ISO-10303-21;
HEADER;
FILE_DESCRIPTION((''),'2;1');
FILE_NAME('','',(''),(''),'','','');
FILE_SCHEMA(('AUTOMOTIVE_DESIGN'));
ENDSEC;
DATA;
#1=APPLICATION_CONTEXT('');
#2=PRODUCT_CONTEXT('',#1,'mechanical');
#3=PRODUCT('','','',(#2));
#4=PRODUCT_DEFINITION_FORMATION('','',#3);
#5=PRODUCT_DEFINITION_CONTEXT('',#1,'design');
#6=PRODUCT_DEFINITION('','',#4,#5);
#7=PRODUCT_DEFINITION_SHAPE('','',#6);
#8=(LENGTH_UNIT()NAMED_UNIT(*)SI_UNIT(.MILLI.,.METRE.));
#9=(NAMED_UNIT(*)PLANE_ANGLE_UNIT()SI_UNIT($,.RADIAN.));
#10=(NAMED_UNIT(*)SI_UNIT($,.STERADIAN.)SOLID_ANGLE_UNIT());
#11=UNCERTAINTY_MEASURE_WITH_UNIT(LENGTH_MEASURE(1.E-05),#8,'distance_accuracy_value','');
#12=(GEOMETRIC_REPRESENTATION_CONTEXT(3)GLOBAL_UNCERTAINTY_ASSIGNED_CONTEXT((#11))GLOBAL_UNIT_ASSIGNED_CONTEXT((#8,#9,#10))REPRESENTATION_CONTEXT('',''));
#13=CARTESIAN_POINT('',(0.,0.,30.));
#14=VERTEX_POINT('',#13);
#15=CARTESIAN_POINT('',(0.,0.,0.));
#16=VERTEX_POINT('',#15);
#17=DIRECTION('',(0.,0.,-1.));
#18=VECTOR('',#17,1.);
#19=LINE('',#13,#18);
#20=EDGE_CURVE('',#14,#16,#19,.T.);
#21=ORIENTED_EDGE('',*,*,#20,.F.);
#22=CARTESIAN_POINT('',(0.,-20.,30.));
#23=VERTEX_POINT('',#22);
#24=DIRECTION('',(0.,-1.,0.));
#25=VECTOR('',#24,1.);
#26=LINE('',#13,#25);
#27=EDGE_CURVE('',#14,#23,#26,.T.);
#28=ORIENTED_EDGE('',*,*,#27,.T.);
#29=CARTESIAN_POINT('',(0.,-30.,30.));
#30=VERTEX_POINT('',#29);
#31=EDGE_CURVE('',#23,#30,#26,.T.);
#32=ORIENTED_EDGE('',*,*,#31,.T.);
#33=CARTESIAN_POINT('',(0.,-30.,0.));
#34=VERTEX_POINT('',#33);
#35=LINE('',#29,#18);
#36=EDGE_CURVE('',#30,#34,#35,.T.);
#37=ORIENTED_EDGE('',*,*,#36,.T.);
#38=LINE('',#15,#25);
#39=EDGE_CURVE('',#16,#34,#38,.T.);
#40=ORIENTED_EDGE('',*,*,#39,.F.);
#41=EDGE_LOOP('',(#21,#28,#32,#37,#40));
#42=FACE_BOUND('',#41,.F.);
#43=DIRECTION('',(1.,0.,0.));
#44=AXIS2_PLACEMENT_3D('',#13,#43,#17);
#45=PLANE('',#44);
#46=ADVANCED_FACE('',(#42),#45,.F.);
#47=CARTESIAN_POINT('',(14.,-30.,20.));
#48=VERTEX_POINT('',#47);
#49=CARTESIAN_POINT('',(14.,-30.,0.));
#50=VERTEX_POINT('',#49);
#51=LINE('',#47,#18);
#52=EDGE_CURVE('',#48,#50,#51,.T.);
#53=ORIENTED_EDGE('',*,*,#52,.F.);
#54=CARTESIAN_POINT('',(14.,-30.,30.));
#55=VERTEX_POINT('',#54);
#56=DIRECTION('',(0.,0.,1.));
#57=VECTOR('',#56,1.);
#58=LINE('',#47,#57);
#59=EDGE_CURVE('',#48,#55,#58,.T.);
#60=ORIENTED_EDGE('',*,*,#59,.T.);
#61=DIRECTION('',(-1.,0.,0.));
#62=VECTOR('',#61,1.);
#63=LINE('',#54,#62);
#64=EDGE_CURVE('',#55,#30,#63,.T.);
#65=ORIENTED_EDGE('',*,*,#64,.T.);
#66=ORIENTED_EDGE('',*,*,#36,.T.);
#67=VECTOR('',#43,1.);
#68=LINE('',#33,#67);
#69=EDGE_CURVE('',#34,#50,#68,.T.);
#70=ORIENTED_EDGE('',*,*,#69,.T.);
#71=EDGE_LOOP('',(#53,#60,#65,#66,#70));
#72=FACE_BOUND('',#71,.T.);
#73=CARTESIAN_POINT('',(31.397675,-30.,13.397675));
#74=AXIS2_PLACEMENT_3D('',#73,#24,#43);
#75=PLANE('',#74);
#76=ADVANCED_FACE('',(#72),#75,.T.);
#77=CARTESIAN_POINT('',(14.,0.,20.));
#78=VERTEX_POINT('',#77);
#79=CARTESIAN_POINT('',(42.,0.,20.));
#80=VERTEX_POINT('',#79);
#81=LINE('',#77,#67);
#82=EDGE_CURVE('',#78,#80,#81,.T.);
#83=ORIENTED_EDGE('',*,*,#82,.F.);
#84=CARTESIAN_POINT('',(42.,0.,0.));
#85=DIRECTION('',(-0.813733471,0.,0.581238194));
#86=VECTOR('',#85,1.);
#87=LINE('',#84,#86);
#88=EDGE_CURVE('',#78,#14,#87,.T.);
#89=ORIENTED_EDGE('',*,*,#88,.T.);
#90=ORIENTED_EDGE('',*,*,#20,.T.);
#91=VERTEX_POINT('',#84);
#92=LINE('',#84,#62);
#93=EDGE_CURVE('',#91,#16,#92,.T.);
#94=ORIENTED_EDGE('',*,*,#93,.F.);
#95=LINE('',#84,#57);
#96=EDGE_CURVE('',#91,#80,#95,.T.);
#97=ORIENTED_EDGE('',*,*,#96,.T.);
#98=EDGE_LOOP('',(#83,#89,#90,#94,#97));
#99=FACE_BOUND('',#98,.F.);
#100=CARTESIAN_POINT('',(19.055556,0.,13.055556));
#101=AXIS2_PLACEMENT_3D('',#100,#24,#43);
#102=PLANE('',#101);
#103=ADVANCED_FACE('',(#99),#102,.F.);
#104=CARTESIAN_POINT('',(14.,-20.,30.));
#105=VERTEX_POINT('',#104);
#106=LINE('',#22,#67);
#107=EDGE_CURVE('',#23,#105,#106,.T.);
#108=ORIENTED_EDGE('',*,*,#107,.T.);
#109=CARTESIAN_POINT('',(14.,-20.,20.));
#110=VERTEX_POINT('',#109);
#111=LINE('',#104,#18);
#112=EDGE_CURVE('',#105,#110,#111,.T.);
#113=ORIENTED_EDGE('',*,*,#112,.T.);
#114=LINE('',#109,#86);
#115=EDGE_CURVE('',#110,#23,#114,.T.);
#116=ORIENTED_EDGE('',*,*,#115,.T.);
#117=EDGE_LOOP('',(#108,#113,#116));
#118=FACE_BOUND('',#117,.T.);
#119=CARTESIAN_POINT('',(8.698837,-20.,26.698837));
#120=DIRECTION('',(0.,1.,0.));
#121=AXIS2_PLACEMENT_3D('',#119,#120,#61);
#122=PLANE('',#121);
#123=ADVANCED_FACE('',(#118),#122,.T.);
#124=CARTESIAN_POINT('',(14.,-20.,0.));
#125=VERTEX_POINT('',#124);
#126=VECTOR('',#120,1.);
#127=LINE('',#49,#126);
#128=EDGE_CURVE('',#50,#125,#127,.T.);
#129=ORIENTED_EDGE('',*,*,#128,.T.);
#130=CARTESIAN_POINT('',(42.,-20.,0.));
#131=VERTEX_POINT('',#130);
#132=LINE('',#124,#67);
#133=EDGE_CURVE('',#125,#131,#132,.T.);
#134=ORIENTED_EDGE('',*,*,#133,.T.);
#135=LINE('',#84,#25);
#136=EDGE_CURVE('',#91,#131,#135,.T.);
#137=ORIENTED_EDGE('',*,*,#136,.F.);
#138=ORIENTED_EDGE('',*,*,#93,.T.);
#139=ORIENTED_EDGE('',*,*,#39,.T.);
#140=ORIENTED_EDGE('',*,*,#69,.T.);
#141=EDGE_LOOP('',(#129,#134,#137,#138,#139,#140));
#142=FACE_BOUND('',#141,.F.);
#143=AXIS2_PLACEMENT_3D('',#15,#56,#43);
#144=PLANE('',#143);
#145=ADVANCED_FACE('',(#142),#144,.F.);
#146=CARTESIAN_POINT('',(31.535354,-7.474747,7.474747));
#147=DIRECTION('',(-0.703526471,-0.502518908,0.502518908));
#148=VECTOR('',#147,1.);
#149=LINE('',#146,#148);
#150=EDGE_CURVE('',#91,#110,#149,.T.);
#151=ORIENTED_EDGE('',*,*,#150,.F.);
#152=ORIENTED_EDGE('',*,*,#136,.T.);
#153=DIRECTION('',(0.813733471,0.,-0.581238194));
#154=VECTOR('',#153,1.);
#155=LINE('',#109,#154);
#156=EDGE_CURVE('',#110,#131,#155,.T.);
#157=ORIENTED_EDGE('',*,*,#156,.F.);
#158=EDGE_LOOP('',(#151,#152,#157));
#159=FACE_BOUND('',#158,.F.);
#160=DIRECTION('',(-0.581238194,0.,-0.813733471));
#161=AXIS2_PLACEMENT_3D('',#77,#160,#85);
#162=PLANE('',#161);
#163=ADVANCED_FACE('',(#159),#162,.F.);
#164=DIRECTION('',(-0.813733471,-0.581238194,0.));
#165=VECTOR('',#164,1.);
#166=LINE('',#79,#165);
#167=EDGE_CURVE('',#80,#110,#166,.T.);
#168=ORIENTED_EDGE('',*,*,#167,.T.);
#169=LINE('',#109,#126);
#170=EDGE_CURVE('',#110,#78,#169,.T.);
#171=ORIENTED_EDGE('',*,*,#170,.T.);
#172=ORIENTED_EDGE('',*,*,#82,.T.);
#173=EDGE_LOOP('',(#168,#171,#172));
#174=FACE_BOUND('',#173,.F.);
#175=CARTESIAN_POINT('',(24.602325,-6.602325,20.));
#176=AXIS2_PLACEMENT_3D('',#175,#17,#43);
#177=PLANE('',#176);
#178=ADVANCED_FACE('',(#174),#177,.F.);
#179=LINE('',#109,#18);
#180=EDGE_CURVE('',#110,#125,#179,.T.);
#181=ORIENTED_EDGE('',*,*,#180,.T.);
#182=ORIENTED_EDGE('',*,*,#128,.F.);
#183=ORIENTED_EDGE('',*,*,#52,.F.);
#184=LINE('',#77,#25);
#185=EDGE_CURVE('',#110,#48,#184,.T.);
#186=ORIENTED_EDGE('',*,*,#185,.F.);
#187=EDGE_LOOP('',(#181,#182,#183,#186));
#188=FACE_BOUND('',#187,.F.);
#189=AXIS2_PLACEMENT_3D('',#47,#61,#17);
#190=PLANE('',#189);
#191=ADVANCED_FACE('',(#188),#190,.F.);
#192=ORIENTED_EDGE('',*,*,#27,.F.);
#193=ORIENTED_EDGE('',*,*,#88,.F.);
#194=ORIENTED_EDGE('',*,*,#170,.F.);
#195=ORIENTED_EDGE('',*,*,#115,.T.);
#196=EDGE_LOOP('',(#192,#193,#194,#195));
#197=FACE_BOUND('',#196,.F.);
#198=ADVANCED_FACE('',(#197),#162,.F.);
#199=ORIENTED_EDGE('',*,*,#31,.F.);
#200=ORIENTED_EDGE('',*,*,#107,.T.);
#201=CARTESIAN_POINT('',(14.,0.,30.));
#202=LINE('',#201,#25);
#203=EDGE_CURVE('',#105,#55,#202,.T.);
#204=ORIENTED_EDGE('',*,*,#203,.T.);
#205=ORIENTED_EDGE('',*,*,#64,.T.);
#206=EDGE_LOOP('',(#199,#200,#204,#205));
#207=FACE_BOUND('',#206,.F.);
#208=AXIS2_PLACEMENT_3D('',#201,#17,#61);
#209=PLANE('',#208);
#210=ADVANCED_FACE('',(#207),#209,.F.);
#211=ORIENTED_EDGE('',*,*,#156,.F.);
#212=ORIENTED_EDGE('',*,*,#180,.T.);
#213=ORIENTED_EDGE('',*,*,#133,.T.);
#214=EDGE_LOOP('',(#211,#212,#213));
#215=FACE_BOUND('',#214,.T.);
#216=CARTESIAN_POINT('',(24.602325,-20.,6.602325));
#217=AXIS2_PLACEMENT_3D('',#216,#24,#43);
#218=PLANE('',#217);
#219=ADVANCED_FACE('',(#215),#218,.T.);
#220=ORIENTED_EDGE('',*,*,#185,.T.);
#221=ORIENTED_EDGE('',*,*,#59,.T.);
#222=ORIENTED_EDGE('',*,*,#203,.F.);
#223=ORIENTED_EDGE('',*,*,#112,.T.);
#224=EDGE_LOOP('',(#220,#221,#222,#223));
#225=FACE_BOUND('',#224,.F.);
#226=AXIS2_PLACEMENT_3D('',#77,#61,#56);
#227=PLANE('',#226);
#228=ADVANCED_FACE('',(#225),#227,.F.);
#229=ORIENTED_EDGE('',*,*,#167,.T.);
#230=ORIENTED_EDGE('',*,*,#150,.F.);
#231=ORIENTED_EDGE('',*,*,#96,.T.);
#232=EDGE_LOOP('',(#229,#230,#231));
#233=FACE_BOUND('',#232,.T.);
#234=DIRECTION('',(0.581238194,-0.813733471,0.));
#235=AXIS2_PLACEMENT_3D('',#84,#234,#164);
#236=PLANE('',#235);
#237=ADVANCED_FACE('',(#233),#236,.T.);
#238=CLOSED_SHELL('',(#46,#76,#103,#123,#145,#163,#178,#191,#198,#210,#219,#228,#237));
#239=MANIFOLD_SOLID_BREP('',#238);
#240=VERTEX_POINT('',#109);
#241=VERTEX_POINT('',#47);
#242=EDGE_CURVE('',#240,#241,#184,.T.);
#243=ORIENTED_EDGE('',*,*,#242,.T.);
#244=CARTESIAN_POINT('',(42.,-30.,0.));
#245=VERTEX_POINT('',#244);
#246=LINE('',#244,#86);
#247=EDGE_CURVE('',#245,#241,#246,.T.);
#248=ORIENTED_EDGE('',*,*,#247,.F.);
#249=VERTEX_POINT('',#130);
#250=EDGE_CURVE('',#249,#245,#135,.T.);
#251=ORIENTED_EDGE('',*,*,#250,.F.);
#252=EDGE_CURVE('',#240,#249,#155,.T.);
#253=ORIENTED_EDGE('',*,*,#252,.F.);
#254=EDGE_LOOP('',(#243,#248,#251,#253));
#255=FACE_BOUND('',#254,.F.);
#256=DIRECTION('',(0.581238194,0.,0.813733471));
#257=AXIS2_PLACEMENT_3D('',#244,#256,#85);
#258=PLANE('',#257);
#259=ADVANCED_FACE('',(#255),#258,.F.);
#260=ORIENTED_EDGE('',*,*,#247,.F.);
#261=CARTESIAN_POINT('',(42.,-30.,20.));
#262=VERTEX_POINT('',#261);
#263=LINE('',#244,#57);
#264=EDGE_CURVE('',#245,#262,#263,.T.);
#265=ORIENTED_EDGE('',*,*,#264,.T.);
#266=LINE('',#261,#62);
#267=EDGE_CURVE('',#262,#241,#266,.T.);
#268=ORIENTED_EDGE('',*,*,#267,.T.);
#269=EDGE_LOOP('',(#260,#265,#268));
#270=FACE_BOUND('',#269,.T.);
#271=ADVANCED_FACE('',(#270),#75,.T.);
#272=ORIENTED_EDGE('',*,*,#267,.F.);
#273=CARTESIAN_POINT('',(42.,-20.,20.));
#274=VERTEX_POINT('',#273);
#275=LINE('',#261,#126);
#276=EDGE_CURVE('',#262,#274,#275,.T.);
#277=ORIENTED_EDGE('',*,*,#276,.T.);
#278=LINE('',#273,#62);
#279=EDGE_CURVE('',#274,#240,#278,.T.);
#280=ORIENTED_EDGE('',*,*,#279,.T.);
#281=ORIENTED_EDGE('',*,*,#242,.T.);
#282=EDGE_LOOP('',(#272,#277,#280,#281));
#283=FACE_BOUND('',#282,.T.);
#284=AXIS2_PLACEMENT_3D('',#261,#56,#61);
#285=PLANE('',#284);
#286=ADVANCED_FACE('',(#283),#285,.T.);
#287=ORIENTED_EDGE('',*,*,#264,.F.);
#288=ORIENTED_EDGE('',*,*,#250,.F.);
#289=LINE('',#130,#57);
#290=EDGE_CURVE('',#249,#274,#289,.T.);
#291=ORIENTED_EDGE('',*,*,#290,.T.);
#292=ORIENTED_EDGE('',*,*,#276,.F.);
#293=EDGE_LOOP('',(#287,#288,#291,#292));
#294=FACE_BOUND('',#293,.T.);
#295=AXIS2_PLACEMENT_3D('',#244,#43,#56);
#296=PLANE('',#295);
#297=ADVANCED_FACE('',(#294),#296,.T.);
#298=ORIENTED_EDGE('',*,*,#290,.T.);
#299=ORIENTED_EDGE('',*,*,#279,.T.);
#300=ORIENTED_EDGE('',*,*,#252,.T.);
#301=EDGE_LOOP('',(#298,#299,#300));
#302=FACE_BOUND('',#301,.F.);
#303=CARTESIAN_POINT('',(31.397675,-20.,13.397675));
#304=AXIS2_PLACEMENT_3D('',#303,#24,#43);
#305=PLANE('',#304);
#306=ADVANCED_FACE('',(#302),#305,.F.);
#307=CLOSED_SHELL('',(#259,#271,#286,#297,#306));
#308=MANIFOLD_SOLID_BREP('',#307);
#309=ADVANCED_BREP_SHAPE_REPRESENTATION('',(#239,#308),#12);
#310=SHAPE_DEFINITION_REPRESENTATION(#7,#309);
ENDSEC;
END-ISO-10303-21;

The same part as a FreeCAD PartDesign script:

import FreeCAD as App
import Part
import Sketcher
from FreeCAD import Vector


def add_polygon(sketch, points):
    """Adds a closed chain of lines whose ends are joined by coincident constraints."""
    first, n = sketch.GeometryCount, len(points)
    for a, b in zip(points, points[1:] + points[:1]):
        sketch.addGeometry(Part.LineSegment(App.Vector(*a, 0), App.Vector(*b, 0)), False)
    for i in range(n):
        sketch.addConstraint(Sketcher.Constraint("Coincident", first + i, 2, first + (i + 1) % n, 1))

doc = App.newDocument("Part")
body = doc.addObject("PartDesign::Body", "Body")
body.AllowCompound = True

# Sketch on XZ plane
sketch1 = body.newObject("Sketcher::SketchObject", "Sketch")
sketch1.AttachmentSupport = (doc.getObject("XZ_Plane"), [""])
sketch1.MapMode = "FlatFace"
add_polygon(sketch1, [(0, 30), (0, 0), (42, 0), (42, 20), (14, 20), (14, 30)])  # lines 0-5
sketch1.addConstraint(Sketcher.Constraint("Vertical", 0))
sketch1.addConstraint(Sketcher.Constraint("Horizontal", 1))
sketch1.addConstraint(Sketcher.Constraint("Vertical", 2))
sketch1.addConstraint(Sketcher.Constraint("Horizontal", 3))
sketch1.addConstraint(Sketcher.Constraint("Vertical", 4))
sketch1.addConstraint(Sketcher.Constraint("Horizontal", 5))
sketch1.addConstraint(Sketcher.Constraint("Coincident", 0, 2, -1, 1))
sketch1.addConstraint(Sketcher.Constraint("DistanceX", 1, 1, 1, 2, 42.0))
sketch1.addConstraint(Sketcher.Constraint("DistanceX", 3, 2, 3, 1, 28.0))
sketch1.addConstraint(Sketcher.Constraint("DistanceY", 0, 2, 0, 1, 30.0))
sketch1.addConstraint(Sketcher.Constraint("DistanceY", 2, 1, 2, 2, 20.0))
pad1 = body.newObject("PartDesign::Pad", "Pad")
pad1.Profile = sketch1
pad1.Length = 30

# Sketch on XZ plane
sketch2 = body.newObject("Sketcher::SketchObject", "Sketch001")
sketch2.AttachmentSupport = (doc.getObject("XZ_Plane"), [""])
sketch2.MapMode = "FlatFace"
add_polygon(sketch2, [(14, 20), (0, 30), (14, 30)])  # lines 0-2
sketch2.addConstraint(Sketcher.Constraint("Horizontal", 1))
sketch2.addConstraint(Sketcher.Constraint("Vertical", 2))
sketch2.addConstraint(Sketcher.Constraint("PointOnObject", 0, 2, -2))
sketch2.addConstraint(Sketcher.Constraint("DistanceX", 1, 1, 1, 2, 14.0))
sketch2.addConstraint(Sketcher.Constraint("DistanceY", 2, 2, 2, 1, 10.0))
sketch2.addConstraint(Sketcher.Constraint("DistanceY", -1, 1, 0, 2, 30.0))
pocket1 = body.newObject("PartDesign::Pocket", "Pocket")
pocket1.Profile = sketch2
pocket1.Length = 20
pocket1.Reversed = True

# Sketch on XZ plane
sketch3 = body.newObject("Sketcher::SketchObject", "Sketch002")
sketch3.AttachmentSupport = (doc.getObject("XZ_Plane"), [""])
sketch3.MapMode = "FlatFace"
sketch3.AttachmentOffset = App.Placement(Vector(0, 0, 30), App.Rotation())
add_polygon(sketch3, [(42, 20), (14, 20), (42, 0)])  # lines 0-2
sketch3.addConstraint(Sketcher.Constraint("Horizontal", 0))
sketch3.addConstraint(Sketcher.Constraint("Vertical", 2))
sketch3.addConstraint(Sketcher.Constraint("PointOnObject", 1, 2, -1))
sketch3.addConstraint(Sketcher.Constraint("DistanceX", 0, 2, 0, 1, 28.0))
sketch3.addConstraint(Sketcher.Constraint("DistanceY", 2, 1, 2, 2, 20.0))
sketch3.addConstraint(Sketcher.Constraint("DistanceX", -1, 1, 0, 2, 14.0))
pocket2 = body.newObject("PartDesign::Pocket", "Pocket001")
pocket2.Profile = sketch3
pocket2.Type = "ThroughAll"

# Sketch on XY plane
sketch4 = body.newObject("Sketcher::SketchObject", "Sketch003")
sketch4.AttachmentSupport = (doc.getObject("XY_Plane"), [""])
sketch4.MapMode = "FlatFace"
add_polygon(sketch4, [(14, 0), (42, 0), (14, -20)])  # lines 0-2
sketch4.addConstraint(Sketcher.Constraint("Horizontal", 0))
sketch4.addConstraint(Sketcher.Constraint("Vertical", 2))
sketch4.addConstraint(Sketcher.Constraint("PointOnObject", 0, 2, -1))
sketch4.addConstraint(Sketcher.Constraint("DistanceX", 0, 1, 0, 2, 28.0))
sketch4.addConstraint(Sketcher.Constraint("DistanceY", 2, 1, 2, 2, 20.0))
sketch4.addConstraint(Sketcher.Constraint("DistanceX", -1, 1, 0, 2, 42.0))
pad2 = body.newObject("PartDesign::Pad", "Pad001")
pad2.Profile = sketch4
pad2.Length = 20

# Sketch on XZ plane
sketch5 = body.newObject("Sketcher::SketchObject", "Sketch004")
sketch5.AttachmentSupport = (doc.getObject("XZ_Plane"), [""])
sketch5.MapMode = "FlatFace"
sketch5.AttachmentOffset = App.Placement(Vector(0, 0, 30), App.Rotation())
add_polygon(sketch5, [(42, 20), (14, 20), (42, 0)])  # lines 0-2
sketch5.addConstraint(Sketcher.Constraint("Horizontal", 0))
sketch5.addConstraint(Sketcher.Constraint("Vertical", 2))
sketch5.addConstraint(Sketcher.Constraint("PointOnObject", 1, 2, -1))
sketch5.addConstraint(Sketcher.Constraint("DistanceX", 0, 2, 0, 1, 28.0))
sketch5.addConstraint(Sketcher.Constraint("DistanceY", 2, 1, 2, 2, 20.0))
sketch5.addConstraint(Sketcher.Constraint("DistanceX", -1, 1, 0, 2, 14.0))
pad3 = body.newObject("PartDesign::Pad", "Pad002")
pad3.Profile = sketch5
pad3.Length = 10
pad3.Reversed = True

# Sketch on XZ plane
sketch6 = body.newObject("Sketcher::SketchObject", "Sketch005")
sketch6.AttachmentSupport = (doc.getObject("XZ_Plane"), [""])
sketch6.MapMode = "FlatFace"
sketch6.AttachmentOffset = App.Placement(Vector(0, 0, 30), App.Rotation())
add_polygon(sketch6, [(42, 0), (14, 20), (14, 0)])  # lines 0-2
sketch6.addConstraint(Sketcher.Constraint("Vertical", 1))
sketch6.addConstraint(Sketcher.Constraint("Horizontal", 2))
sketch6.addConstraint(Sketcher.Constraint("PointOnObject", 1, 2, -1))
sketch6.addConstraint(Sketcher.Constraint("DistanceX", 2, 1, 2, 2, 28.0))
sketch6.addConstraint(Sketcher.Constraint("DistanceY", 1, 2, 1, 1, 20.0))
sketch6.addConstraint(Sketcher.Constraint("DistanceX", -1, 1, 0, 2, 14.0))
pocket3 = body.newObject("PartDesign::Pocket", "Pocket002")
pocket3.Profile = sketch6
pocket3.Length = 10

doc.recompute()
